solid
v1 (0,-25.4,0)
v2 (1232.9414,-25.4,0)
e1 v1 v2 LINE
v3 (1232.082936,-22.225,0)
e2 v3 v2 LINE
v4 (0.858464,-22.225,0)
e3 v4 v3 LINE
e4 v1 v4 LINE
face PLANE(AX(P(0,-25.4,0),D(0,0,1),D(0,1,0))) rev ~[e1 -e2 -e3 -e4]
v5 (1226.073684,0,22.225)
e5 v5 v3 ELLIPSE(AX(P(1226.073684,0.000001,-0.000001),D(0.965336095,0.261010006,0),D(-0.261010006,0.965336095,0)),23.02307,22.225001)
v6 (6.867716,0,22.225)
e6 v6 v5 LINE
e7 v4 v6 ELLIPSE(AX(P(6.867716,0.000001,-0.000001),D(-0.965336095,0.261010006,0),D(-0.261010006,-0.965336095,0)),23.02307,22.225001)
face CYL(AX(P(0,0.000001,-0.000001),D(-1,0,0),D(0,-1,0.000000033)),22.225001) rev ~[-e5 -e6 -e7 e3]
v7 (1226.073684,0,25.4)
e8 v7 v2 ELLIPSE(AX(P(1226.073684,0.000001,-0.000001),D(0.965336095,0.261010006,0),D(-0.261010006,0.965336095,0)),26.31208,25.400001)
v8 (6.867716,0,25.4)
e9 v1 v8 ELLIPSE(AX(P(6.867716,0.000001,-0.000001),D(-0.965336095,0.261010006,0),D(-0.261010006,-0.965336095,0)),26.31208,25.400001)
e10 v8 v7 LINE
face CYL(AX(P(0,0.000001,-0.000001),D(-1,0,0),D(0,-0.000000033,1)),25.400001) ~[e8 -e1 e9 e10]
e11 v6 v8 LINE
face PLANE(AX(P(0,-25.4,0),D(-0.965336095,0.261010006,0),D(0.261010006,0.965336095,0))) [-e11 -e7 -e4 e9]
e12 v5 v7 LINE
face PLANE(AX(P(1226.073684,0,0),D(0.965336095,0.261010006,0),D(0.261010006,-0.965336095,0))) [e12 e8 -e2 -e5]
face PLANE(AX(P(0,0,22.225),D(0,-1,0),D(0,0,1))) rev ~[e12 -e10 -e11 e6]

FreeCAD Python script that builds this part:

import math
import FreeCAD as App
import Part
import Sketcher

V = App.Vector
Q = App.Units.Quantity

doc = App.newDocument("Part")
body = doc.addObject("PartDesign::Body", "Body")

# Sketch on YZ plane
sketch1 = body.newObject("Sketcher::SketchObject", "Sketch")
sketch1.AttachmentSupport = (doc.getObject("YZ_Plane"), [""])
sketch1.MapMode = "FlatFace"
sketch1.addGeometry([
    Part.ArcOfCircle(Part.Circle(V(0, 0, 0), V(0, 0, 1), 25.4), math.radians(90), math.radians(180)),
    Part.LineSegment(V(-25.4, 0, 0), V(-22.2, 0, 0)),
    Part.ArcOfCircle(Part.Circle(V(0, 0, 0), V(0, 0, 1), 22.2), math.radians(90), math.radians(180)),
    Part.LineSegment(V(0, 22.2, 0), V(0, 25.4, 0)),
], False)
sketch1.addConstraint([
    Sketcher.Constraint("Coincident", 0, 2, 1, 1),
    Sketcher.Constraint("Coincident", 1, 2, 2, 2),
    Sketcher.Constraint("Coincident", 2, 1, 3, 1),
    Sketcher.Constraint("Coincident", 3, 2, 0, 1),
    Sketcher.Constraint("Horizontal", 1),
    Sketcher.Constraint("Vertical", 3),
    Sketcher.Constraint("Coincident", 0, 3, -1, 1),
    Sketcher.Constraint("Coincident", 2, 3, -1, 1),
    Sketcher.Constraint("PointOnObject", 0, 2, -1),
    Sketcher.Constraint("PointOnObject", 2, 1, -2),
    Sketcher.Constraint("Radius", 0, Q("1 in")),
    Sketcher.Constraint("Radius", 2, Q("0.875 in")),
])
pad1 = body.newObject("PartDesign::Pad", "Pad")
pad1.Profile = sketch1
pad1.Length = Q("48.541 in")

# Sketch on XY plane
sketch2 = body.newObject("Sketcher::SketchObject", "Sketch001")
sketch2.AttachmentSupport = (doc.getObject("XY_Plane"), [""])
sketch2.MapMode = "FlatFace"
sketch2.addGeometry([
    Part.LineSegment(V(0, 0, 0), V(0, -25, 0)),  # 0
    Part.LineSegment(V(0, -25, 0), V(7, 0, 0)),  # 1
    Part.LineSegment(V(7, 0, 0), V(0, 0, 0)),  # 2
    Part.LineSegment(V(1233, -25, 0), V(1233, 0, 0)),  # 3
    Part.LineSegment(V(1233, 0, 0), V(1226, 0, 0)),  # 4
    Part.LineSegment(V(1226, 0, 0), V(1233, -25, 0)),  # 5
], False)
sketch2.addConstraint([
    Sketcher.Constraint("Coincident", 0, 2, 1, 1),
    Sketcher.Constraint("Coincident", 1, 2, 2, 1),
    Sketcher.Constraint("Coincident", 2, 2, 0, 1),
    Sketcher.Constraint("Coincident", 3, 2, 4, 1),
    Sketcher.Constraint("Coincident", 4, 2, 5, 1),
    Sketcher.Constraint("Coincident", 5, 2, 3, 1),
    Sketcher.Constraint("Vertical", 0),
    Sketcher.Constraint("Horizontal", 2),
    Sketcher.Constraint("Vertical", 3),
    Sketcher.Constraint("Horizontal", 4),
    Sketcher.Constraint("Coincident", 2, 2, -1, 1),
    Sketcher.Constraint("PointOnObject", 3, 2, -1),
    Sketcher.Constraint("Horizontal", 0, 2, 5, 2),
    Sketcher.Constraint("Equal", 2, 4),
    Sketcher.Constraint("DistanceY", 0, 2, 0, 1, Q("1 in")),
    Sketcher.Constraint("Angle", 1, Q("74.869999 deg")),
    Sketcher.Constraint("DistanceX", -1, 1, 3, 2, Q("48.541 in")),
])
pocket1 = body.newObject("PartDesign::Pocket", "Pocket")
pocket1.Profile = sketch2
pocket1.Length = Q("1 in")
pocket1.Reversed = True

doc.recompute()
